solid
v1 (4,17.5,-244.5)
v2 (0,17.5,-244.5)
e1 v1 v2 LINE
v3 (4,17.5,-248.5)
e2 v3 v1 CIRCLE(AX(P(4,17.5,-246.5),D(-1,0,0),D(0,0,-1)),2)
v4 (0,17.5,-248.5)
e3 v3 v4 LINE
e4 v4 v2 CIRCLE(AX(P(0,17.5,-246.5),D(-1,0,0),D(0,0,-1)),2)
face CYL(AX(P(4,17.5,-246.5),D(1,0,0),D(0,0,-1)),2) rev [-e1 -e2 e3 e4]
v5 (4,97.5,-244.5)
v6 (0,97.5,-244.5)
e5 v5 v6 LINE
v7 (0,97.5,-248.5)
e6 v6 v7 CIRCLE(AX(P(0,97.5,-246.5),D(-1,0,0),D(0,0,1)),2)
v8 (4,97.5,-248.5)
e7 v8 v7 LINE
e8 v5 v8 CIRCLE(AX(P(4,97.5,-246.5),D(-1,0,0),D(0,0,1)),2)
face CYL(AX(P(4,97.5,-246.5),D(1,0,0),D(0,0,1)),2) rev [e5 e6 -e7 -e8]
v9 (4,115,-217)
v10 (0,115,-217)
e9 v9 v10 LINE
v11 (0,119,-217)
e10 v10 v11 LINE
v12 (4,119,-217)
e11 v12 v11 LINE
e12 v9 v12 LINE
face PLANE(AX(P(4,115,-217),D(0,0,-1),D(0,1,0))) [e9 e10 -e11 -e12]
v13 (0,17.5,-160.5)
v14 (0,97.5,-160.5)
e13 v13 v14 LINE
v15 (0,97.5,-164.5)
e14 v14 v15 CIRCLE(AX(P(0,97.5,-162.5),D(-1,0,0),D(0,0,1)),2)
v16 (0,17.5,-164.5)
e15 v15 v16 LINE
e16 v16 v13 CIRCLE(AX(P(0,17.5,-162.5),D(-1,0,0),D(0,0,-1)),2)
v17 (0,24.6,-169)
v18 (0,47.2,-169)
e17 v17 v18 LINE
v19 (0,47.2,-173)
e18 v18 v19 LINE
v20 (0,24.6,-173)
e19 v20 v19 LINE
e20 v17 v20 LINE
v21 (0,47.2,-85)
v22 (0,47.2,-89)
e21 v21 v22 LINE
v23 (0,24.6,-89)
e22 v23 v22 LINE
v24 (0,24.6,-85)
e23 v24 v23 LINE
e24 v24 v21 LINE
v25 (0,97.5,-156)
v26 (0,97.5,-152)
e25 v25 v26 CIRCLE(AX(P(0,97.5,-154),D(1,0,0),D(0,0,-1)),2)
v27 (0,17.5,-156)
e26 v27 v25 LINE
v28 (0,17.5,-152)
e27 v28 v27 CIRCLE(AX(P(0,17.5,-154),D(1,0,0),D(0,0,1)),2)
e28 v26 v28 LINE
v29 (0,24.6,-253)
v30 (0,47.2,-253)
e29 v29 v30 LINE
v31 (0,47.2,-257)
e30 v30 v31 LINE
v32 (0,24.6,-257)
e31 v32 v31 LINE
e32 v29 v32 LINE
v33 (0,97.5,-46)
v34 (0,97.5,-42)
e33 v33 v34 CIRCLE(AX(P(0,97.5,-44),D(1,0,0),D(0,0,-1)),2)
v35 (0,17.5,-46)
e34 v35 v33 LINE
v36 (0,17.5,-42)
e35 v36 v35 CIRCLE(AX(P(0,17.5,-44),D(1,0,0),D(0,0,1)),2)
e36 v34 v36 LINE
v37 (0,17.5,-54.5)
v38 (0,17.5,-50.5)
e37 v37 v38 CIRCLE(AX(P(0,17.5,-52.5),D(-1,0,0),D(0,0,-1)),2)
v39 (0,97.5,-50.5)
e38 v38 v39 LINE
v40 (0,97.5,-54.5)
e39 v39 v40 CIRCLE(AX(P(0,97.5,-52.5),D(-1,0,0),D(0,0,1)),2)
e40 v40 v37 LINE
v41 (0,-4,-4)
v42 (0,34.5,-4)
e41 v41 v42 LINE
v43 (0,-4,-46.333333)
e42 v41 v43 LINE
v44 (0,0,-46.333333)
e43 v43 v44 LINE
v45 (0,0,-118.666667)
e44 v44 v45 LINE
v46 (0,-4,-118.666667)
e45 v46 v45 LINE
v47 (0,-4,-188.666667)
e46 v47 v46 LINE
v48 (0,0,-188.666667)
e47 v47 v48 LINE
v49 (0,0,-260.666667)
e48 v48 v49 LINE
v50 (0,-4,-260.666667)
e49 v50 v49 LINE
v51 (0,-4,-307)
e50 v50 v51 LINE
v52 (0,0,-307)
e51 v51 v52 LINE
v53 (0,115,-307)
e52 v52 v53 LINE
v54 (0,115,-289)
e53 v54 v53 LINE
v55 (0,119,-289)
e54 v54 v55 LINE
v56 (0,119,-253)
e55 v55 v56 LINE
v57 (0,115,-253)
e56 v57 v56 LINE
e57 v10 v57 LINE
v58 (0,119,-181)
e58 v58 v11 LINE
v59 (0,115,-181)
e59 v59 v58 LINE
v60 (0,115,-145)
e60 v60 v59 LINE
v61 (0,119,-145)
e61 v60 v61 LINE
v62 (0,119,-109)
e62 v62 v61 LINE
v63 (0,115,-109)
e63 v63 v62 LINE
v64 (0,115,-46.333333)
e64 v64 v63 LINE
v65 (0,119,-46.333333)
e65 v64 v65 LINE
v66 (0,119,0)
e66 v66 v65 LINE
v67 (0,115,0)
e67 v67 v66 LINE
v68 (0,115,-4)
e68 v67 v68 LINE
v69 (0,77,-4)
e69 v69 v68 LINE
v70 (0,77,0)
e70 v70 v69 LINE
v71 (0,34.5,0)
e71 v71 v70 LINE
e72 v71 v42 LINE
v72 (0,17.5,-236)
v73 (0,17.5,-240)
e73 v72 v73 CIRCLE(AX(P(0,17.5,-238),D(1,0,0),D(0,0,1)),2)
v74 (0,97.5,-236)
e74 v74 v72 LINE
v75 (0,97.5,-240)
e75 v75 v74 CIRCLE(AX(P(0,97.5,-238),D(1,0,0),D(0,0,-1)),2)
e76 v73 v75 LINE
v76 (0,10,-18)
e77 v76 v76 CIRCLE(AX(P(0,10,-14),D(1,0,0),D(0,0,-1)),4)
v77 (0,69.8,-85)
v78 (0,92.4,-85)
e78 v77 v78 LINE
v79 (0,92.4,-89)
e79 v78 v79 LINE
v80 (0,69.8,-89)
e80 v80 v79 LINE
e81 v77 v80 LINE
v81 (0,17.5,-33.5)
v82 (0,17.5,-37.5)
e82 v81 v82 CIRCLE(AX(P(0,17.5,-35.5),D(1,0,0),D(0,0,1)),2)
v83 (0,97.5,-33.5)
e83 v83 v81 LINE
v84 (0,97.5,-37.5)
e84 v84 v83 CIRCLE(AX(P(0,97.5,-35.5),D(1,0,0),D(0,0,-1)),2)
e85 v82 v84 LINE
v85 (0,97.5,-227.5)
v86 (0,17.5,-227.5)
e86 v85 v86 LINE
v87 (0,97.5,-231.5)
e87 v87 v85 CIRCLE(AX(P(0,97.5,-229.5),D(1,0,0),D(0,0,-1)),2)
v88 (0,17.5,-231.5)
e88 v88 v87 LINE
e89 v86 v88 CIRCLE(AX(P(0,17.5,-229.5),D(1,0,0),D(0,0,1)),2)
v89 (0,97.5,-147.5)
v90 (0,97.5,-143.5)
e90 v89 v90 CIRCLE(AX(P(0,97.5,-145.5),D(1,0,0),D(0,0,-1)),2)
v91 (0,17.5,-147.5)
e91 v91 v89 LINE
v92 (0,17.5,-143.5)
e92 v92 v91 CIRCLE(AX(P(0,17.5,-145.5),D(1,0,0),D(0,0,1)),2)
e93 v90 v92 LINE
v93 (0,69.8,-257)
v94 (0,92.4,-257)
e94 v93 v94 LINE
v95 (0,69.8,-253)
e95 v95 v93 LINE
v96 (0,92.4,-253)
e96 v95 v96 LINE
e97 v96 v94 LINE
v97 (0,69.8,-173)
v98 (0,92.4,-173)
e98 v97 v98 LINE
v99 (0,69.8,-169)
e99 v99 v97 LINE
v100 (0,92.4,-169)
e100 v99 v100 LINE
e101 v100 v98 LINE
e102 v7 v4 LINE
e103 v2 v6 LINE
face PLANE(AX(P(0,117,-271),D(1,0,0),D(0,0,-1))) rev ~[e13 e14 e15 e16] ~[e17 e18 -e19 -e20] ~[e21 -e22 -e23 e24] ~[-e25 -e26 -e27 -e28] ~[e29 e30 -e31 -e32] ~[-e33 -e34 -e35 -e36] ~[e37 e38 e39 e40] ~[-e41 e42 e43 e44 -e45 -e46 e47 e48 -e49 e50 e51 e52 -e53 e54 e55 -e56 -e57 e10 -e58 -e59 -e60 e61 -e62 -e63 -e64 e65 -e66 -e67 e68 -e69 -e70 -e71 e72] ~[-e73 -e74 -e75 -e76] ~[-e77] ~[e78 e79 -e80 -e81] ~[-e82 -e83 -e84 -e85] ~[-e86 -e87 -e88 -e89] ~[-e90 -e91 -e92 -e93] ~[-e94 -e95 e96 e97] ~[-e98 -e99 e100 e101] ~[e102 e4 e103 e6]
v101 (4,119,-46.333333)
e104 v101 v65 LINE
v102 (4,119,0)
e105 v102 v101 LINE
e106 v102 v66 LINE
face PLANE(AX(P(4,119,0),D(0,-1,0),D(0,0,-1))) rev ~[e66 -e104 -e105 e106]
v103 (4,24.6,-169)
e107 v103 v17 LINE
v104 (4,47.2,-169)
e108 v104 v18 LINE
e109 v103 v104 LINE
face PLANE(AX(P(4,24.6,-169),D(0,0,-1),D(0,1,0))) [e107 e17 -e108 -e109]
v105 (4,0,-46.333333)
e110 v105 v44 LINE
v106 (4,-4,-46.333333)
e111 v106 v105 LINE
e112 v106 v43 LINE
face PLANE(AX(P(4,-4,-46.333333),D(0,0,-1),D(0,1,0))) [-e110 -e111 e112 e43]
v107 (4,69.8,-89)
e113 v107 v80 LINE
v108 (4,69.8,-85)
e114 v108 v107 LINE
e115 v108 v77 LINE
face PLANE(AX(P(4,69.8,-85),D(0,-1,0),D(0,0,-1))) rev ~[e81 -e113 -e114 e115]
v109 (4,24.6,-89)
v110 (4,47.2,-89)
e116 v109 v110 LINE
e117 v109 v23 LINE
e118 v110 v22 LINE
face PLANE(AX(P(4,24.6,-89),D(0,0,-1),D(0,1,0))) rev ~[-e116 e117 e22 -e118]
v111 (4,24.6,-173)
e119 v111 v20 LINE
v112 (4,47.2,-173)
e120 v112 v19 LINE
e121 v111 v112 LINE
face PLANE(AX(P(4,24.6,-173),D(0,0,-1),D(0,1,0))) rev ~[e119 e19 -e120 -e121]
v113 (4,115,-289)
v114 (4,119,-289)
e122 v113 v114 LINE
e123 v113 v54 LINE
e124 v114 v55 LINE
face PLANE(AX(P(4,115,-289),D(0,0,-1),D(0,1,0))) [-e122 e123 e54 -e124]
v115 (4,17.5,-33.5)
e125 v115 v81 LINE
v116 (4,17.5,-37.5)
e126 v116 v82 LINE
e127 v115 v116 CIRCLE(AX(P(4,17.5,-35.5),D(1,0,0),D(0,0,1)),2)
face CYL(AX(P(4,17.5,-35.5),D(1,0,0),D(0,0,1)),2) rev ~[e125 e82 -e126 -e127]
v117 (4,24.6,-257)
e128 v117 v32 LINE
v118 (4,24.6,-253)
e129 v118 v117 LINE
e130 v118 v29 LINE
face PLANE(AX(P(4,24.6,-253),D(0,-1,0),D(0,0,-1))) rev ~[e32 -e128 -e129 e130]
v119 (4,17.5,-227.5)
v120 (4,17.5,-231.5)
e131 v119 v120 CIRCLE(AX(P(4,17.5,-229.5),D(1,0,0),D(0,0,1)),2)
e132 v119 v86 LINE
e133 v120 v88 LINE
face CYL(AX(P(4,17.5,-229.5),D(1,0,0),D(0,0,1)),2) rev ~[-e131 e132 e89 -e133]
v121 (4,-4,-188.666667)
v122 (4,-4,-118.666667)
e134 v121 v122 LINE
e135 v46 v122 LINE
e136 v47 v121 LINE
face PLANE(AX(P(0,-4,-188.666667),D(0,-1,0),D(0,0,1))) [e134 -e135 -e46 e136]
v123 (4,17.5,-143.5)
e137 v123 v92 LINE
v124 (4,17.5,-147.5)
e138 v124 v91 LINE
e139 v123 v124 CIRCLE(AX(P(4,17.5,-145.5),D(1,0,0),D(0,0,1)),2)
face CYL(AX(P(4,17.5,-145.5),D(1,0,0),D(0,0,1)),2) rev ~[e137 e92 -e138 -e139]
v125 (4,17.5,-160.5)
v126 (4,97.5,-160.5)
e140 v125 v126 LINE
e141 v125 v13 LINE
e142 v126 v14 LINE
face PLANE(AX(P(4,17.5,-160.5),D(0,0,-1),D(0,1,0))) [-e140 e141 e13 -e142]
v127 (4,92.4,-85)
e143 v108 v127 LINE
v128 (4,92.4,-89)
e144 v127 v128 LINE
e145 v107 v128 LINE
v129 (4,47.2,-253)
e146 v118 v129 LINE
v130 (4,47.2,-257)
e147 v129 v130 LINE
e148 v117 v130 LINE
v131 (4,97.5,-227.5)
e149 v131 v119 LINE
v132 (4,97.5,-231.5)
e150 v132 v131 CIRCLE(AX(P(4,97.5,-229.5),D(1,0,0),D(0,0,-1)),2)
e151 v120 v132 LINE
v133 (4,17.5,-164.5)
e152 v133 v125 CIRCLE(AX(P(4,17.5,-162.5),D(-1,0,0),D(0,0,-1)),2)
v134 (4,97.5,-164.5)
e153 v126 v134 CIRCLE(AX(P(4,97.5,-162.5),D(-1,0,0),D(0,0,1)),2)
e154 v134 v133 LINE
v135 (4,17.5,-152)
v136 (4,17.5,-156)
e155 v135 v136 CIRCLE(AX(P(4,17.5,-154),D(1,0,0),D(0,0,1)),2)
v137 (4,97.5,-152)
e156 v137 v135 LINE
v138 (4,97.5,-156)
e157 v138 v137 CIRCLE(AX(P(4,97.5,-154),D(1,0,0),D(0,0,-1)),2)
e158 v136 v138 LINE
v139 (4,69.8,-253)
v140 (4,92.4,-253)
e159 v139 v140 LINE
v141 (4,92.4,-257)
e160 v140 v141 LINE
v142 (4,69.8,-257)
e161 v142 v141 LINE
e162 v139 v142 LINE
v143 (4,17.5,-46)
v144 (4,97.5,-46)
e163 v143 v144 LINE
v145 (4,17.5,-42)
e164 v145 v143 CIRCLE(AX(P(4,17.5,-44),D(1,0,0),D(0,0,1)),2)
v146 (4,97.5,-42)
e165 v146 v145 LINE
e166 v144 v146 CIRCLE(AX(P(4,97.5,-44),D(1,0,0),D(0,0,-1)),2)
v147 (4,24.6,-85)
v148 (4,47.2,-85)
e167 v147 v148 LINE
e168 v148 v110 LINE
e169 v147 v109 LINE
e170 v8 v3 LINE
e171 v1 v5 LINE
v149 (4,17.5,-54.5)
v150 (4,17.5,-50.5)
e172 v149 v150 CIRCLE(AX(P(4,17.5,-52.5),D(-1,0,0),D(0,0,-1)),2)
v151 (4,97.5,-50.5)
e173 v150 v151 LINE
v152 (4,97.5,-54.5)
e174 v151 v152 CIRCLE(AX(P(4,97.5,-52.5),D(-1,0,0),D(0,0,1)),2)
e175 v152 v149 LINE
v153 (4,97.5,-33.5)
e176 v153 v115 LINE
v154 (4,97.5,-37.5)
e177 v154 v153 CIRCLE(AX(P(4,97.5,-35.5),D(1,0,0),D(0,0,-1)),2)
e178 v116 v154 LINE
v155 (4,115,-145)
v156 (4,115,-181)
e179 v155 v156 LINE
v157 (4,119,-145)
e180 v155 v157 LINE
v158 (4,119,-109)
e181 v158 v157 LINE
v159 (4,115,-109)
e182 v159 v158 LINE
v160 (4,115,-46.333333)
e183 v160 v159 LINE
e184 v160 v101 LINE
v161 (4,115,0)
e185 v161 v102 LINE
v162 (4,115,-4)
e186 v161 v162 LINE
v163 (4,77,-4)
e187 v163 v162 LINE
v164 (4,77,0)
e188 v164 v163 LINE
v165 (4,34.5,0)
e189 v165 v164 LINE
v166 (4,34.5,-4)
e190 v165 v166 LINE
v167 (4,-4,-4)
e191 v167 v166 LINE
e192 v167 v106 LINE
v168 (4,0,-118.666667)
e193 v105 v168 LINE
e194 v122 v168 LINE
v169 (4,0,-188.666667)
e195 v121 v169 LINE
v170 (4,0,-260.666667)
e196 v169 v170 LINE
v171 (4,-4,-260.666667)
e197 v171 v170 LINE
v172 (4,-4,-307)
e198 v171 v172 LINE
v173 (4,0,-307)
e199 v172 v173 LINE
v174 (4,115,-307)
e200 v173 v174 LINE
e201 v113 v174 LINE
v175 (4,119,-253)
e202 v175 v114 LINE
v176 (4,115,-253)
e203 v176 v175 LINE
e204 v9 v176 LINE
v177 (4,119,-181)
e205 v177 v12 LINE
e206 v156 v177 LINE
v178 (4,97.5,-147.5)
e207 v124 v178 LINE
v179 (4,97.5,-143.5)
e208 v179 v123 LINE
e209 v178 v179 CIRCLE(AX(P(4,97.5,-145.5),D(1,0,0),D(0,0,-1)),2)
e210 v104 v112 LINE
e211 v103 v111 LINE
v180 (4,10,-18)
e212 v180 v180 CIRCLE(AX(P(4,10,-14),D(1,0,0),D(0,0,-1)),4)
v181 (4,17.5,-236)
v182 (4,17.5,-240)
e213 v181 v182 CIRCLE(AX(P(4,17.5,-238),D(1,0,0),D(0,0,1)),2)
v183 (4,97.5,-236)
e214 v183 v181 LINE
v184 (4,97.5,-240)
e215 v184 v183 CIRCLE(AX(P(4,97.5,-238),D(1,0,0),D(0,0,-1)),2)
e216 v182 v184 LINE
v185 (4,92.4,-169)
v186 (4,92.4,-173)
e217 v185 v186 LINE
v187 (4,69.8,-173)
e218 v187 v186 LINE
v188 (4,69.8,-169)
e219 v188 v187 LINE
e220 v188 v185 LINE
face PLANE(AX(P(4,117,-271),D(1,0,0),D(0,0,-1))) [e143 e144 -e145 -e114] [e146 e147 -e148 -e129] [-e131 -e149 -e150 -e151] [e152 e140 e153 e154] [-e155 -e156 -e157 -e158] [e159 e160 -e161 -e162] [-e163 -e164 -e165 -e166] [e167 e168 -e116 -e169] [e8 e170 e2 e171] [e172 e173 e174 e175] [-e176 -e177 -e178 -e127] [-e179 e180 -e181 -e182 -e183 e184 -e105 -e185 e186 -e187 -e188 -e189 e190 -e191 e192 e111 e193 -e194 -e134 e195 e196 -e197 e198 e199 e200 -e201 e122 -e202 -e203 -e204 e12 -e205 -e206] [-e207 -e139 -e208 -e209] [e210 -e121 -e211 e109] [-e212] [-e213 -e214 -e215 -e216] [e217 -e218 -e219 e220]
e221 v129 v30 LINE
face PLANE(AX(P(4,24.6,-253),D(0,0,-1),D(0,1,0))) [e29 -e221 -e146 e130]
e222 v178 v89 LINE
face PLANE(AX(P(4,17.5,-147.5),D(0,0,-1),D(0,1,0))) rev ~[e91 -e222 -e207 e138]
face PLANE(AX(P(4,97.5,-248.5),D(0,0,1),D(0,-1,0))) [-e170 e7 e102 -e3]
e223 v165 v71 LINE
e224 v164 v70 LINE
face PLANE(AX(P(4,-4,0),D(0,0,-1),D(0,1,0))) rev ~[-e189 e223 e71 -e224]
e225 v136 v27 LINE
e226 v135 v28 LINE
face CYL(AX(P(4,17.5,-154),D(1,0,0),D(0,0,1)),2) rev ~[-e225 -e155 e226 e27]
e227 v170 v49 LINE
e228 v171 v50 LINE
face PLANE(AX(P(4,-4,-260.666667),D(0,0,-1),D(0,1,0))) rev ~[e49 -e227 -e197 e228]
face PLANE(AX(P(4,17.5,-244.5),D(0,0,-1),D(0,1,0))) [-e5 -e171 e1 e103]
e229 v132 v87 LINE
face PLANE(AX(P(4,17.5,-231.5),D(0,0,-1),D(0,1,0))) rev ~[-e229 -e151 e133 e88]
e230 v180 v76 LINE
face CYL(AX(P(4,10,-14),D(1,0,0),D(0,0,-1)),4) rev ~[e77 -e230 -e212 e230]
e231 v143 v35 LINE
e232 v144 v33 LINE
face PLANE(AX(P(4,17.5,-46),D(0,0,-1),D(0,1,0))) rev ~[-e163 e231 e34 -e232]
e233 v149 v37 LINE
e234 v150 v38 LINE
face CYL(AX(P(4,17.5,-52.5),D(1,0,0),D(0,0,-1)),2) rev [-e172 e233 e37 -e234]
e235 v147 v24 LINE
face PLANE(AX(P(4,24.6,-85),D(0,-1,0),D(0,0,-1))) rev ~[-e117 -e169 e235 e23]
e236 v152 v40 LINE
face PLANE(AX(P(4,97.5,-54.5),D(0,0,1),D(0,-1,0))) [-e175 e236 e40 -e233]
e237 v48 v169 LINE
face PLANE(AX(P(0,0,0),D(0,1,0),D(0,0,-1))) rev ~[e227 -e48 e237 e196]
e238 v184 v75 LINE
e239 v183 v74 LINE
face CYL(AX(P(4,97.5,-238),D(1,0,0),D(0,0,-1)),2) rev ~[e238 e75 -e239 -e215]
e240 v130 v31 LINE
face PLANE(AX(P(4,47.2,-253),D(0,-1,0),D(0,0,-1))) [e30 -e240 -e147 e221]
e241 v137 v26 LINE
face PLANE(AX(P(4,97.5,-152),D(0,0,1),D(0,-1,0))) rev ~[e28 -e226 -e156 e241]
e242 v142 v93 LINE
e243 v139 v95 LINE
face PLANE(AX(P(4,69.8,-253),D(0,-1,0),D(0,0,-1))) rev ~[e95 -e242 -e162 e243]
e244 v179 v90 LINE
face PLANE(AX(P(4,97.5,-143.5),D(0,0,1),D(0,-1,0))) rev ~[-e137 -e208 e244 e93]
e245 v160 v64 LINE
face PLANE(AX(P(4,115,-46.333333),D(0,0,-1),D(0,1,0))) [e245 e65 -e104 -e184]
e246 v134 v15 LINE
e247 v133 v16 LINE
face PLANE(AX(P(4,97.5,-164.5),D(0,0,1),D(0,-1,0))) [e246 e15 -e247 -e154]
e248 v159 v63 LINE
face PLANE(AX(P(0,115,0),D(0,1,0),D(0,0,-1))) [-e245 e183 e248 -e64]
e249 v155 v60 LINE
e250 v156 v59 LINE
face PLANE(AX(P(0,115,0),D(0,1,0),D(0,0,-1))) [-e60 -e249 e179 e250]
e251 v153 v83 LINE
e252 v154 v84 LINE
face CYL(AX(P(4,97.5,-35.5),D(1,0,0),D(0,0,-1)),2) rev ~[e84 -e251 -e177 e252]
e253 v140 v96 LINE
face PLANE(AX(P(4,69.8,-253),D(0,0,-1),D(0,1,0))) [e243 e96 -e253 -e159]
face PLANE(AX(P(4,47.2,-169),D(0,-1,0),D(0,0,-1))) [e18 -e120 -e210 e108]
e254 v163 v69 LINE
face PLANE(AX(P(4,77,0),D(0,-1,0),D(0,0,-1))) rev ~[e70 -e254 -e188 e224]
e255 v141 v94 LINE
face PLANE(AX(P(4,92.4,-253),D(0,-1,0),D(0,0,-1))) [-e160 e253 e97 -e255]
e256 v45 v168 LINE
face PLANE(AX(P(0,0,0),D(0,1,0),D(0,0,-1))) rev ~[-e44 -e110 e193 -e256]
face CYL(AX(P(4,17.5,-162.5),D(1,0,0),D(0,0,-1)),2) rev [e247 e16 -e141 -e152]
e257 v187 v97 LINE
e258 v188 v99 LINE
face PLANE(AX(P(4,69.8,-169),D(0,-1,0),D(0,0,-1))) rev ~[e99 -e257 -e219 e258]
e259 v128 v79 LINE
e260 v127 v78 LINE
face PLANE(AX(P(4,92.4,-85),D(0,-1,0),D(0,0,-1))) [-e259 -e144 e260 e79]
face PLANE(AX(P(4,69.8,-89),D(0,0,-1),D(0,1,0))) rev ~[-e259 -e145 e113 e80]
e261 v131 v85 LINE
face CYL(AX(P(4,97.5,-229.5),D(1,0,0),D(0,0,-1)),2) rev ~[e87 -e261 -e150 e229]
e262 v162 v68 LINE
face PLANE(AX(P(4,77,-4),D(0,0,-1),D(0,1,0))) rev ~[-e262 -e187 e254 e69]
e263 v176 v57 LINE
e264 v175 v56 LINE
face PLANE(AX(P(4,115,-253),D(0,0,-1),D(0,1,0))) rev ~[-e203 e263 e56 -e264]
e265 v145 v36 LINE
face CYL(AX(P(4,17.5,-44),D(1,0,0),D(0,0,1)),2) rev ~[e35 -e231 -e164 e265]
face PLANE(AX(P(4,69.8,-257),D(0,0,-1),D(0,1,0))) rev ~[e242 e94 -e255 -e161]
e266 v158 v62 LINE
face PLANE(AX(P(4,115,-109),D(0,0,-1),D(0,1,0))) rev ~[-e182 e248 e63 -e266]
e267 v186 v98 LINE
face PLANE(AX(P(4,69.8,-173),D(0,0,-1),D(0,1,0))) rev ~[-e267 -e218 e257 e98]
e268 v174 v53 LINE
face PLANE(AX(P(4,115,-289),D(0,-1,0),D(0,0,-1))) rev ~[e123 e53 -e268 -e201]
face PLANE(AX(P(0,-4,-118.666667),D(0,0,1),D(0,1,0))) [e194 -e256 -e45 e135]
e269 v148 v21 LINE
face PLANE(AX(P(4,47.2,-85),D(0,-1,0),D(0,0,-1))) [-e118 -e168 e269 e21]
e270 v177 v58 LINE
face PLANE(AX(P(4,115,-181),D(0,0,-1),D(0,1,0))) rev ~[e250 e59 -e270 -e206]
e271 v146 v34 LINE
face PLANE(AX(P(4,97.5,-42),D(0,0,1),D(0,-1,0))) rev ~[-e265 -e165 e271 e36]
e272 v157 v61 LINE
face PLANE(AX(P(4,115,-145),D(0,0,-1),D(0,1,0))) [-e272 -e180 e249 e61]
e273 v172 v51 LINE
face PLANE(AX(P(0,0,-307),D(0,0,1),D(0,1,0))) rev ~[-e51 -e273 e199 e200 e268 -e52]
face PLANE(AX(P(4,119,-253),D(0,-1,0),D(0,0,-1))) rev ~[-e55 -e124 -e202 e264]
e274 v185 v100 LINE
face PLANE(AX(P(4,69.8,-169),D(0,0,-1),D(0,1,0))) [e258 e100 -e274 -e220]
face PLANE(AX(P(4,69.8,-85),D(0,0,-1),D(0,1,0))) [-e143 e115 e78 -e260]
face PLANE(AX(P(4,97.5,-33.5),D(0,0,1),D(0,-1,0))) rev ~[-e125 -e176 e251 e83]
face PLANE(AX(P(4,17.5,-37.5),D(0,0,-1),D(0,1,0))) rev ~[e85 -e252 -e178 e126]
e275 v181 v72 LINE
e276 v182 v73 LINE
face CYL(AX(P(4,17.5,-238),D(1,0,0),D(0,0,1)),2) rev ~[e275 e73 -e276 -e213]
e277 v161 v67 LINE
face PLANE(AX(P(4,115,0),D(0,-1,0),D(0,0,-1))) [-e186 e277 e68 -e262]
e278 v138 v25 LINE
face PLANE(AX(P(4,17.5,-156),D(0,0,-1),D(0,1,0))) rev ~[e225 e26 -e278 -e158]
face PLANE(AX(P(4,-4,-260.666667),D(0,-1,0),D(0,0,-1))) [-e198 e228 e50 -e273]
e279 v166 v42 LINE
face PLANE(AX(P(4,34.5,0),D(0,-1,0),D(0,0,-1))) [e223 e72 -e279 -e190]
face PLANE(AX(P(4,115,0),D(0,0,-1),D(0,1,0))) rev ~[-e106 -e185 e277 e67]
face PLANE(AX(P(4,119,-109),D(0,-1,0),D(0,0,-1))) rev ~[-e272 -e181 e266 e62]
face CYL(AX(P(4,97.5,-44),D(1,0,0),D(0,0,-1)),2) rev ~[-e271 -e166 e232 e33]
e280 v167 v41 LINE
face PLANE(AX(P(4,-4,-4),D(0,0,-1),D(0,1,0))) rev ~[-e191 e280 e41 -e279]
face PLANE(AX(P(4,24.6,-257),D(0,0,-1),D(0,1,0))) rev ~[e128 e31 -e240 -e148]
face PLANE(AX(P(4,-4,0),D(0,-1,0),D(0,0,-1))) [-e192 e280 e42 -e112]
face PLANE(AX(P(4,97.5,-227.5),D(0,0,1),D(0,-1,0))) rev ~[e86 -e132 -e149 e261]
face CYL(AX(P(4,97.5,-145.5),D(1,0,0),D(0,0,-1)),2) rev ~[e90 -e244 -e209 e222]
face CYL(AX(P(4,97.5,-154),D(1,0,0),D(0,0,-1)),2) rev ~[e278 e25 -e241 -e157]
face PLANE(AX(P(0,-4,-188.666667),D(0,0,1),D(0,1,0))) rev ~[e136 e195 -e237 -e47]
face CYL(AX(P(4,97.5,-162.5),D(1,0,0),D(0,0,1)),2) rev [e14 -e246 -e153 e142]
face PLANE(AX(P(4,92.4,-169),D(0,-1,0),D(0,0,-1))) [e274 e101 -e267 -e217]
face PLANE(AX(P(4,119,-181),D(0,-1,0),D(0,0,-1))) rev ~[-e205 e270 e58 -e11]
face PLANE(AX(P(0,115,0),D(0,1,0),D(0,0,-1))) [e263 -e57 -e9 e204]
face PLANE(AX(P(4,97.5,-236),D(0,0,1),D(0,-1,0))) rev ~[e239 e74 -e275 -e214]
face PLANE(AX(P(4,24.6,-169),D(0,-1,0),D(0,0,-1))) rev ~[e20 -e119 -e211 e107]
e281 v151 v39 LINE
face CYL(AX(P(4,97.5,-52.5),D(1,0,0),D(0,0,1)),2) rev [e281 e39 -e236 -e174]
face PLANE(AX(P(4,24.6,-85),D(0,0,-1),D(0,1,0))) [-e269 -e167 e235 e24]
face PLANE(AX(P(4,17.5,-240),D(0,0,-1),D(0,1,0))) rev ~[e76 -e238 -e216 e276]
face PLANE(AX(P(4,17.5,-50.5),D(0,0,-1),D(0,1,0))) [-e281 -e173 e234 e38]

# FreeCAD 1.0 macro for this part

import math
import FreeCAD as App
import Part
import Sketcher
from FreeCAD import Vector
Q = App.Units.Quantity

doc = App.newDocument("Part")
body = doc.addObject("PartDesign::Body", "Body")

# Sketch on YZ plane
sketch1 = body.newObject("Sketcher::SketchObject", "Sketch")
sketch1.AttachmentSupport = (doc.getObject("YZ_Plane"), [""])
sketch1.MapMode = "FlatFace"
sketch1.addGeometry(Part.LineSegment(Vector(115, 0, 0), Vector(0, 0, 0)), False)
sketch1.addGeometry(Part.LineSegment(Vector(0, 0, 0), Vector(0, -307, 0)), False)
sketch1.addGeometry(Part.LineSegment(Vector(0, -307, 0), Vector(115, -307, 0)), False)
sketch1.addGeometry(Part.LineSegment(Vector(115, -307, 0), Vector(115, 0, 0)), False)
sketch1.addConstraint(Sketcher.Constraint("Coincident", 0, 2, 1, 1))
sketch1.addConstraint(Sketcher.Constraint("Coincident", 1, 2, 2, 1))
sketch1.addConstraint(Sketcher.Constraint("Coincident", 2, 2, 3, 1))
sketch1.addConstraint(Sketcher.Constraint("Coincident", 3, 2, 0, 1))
sketch1.addConstraint(Sketcher.Constraint("Horizontal", 0))
sketch1.addConstraint(Sketcher.Constraint("Vertical", 1))
sketch1.addConstraint(Sketcher.Constraint("Horizontal", 2))
sketch1.addConstraint(Sketcher.Constraint("Vertical", 3))
sketch1.addConstraint(Sketcher.Constraint("Coincident", 0, 2, -1, 1))
sketch1.addConstraint(Sketcher.Constraint("DistanceX", 0, 2, 0, 1, Q("115 mm")))
sketch1.addConstraint(Sketcher.Constraint("DistanceY", 1, 2, 1, 1, Q("307 mm")))
pad1 = body.newObject("PartDesign::Pad", "Pad")
pad1.Profile = sketch1
pad1.Length = 4

# Sketch on YZ plane
sketch2 = body.newObject("Sketcher::SketchObject", "Sketch001")
sketch2.AttachmentSupport = (doc.getObject("YZ_Plane"), [""])
sketch2.MapMode = "FlatFace"
sketch2.AttachmentOffset = App.Placement(Vector(0, 0, 4), App.Rotation())
sketch2.addGeometry(Part.LineSegment(Vector(0, 0, 0), Vector(-4, 0, 0)), False)
sketch2.addGeometry(Part.LineSegment(Vector(-4, 0, 0), Vector(-4, -46.333333, 0)), False)
sketch2.addGeometry(Part.LineSegment(Vector(-4, -46.333333, 0), Vector(0, -46.333333, 0)), False)
sketch2.addGeometry(Part.LineSegment(Vector(0, -46.333333, 0), Vector(0, 0, 0)), False)
sketch2.addGeometry(Part.LineSegment(Vector(0, -260.666667, 0), Vector(-4, -260.666667, 0)), False)
sketch2.addGeometry(Part.LineSegment(Vector(-4, -260.666667, 0), Vector(-4, -307, 0)), False)
sketch2.addGeometry(Part.LineSegment(Vector(-4, -307, 0), Vector(0, -307, 0)), False)
sketch2.addGeometry(Part.LineSegment(Vector(0, -307, 0), Vector(0, -260.666667, 0)), False)
sketch2.addConstraint(Sketcher.Constraint("Coincident", 0, 2, 1, 1))
sketch2.addConstraint(Sketcher.Constraint("Coincident", 1, 2, 2, 1))
sketch2.addConstraint(Sketcher.Constraint("Coincident", 2, 2, 3, 1))
sketch2.addConstraint(Sketcher.Constraint("Coincident", 3, 2, 0, 1))
sketch2.addConstraint(Sketcher.Constraint("Coincident", 4, 2, 5, 1))
sketch2.addConstraint(Sketcher.Constraint("Coincident", 5, 2, 6, 1))
sketch2.addConstraint(Sketcher.Constraint("Coincident", 6, 2, 7, 1))
sketch2.addConstraint(Sketcher.Constraint("Coincident", 7, 2, 4, 1))
sketch2.addConstraint(Sketcher.Constraint("Horizontal", 0))
sketch2.addConstraint(Sketcher.Constraint("Vertical", 1))
sketch2.addConstraint(Sketcher.Constraint("Horizontal", 2))
sketch2.addConstraint(Sketcher.Constraint("Vertical", 3))
sketch2.addConstraint(Sketcher.Constraint("Horizontal", 4))
sketch2.addConstraint(Sketcher.Constraint("Vertical", 5))
sketch2.addConstraint(Sketcher.Constraint("Horizontal", 6))
sketch2.addConstraint(Sketcher.Constraint("Vertical", 7))
sketch2.addConstraint(Sketcher.Constraint("Coincident", 3, 2, -1, 1))
sketch2.addConstraint(Sketcher.Constraint("PointOnObject", 6, 2, -2))
sketch2.addConstraint(Sketcher.Constraint("Vertical", 1, 2, 4, 2))
sketch2.addConstraint(Sketcher.Constraint("Equal", 3, 5))
sketch2.addConstraint(Sketcher.Constraint("DistanceX", 0, 2, 0, 1, Q("4 mm")))
sketch2.addConstraint(Sketcher.Constraint("DistanceY", 5, 2, -1, 1, Q("307 mm")))
sketch2.addConstraint(Sketcher.Constraint("DistanceY", 1, 2, 1, 1, Q("46.333333 mm")))
pad2 = body.newObject("PartDesign::Pad", "Pad001")
pad2.Profile = sketch2
pad2.Length = 4
pad2.Reversed = True

# Sketch on YZ plane
sketch3 = body.newObject("Sketcher::SketchObject", "Sketch002")
sketch3.AttachmentSupport = (doc.getObject("YZ_Plane"), [""])
sketch3.MapMode = "FlatFace"
sketch3.AttachmentOffset = App.Placement(Vector(0, 0, 4), App.Rotation())
sketch3.addGeometry(Part.LineSegment(Vector(115, 0, 0), Vector(77, 0, 0)), False)
sketch3.addGeometry(Part.LineSegment(Vector(77, 0, 0), Vector(77, -4, 0)), False)
sketch3.addGeometry(Part.LineSegment(Vector(77, -4, 0), Vector(115, -4, 0)), False)
sketch3.addGeometry(Part.LineSegment(Vector(115, -4, 0), Vector(115, 0, 0)), False)
sketch3.addGeometry(Part.LineSegment(Vector(34.5, 0, 0), Vector(-4, 0, 0)), False)
sketch3.addGeometry(Part.LineSegment(Vector(-4, 0, 0), Vector(-4, -4, 0)), False)
sketch3.addGeometry(Part.LineSegment(Vector(-4, -4, 0), Vector(34.5, -4, 0)), False)
sketch3.addGeometry(Part.LineSegment(Vector(34.5, -4, 0), Vector(34.5, 0, 0)), False)
sketch3.addConstraint(Sketcher.Constraint("Coincident", 0, 2, 1, 1))
sketch3.addConstraint(Sketcher.Constraint("Coincident", 1, 2, 2, 1))
sketch3.addConstraint(Sketcher.Constraint("Coincident", 2, 2, 3, 1))
sketch3.addConstraint(Sketcher.Constraint("Coincident", 3, 2, 0, 1))
sketch3.addConstraint(Sketcher.Constraint("Coincident", 4, 2, 5, 1))
sketch3.addConstraint(Sketcher.Constraint("Coincident", 5, 2, 6, 1))
sketch3.addConstraint(Sketcher.Constraint("Coincident", 6, 2, 7, 1))
sketch3.addConstraint(Sketcher.Constraint("Coincident", 7, 2, 4, 1))
sketch3.addConstraint(Sketcher.Constraint("Horizontal", 0))
sketch3.addConstraint(Sketcher.Constraint("Vertical", 1))
sketch3.addConstraint(Sketcher.Constraint("Horizontal", 2))
sketch3.addConstraint(Sketcher.Constraint("Vertical", 3))
sketch3.addConstraint(Sketcher.Constraint("Horizontal", 4))
sketch3.addConstraint(Sketcher.Constraint("Vertical", 5))
sketch3.addConstraint(Sketcher.Constraint("Horizontal", 6))
sketch3.addConstraint(Sketcher.Constraint("Vertical", 7))
sketch3.addConstraint(Sketcher.Constraint("PointOnObject", 0, 2, -1))
sketch3.addConstraint(Sketcher.Constraint("PointOnObject", 4, 2, -1))
sketch3.addConstraint(Sketcher.Constraint("Horizontal", 2, 2, 5, 2))
sketch3.addConstraint(Sketcher.Constraint("DistanceX", 0, 2, 0, 1, Q("38 mm")))
sketch3.addConstraint(Sketcher.Constraint("DistanceY", 1, 2, 1, 1, Q("4 mm")))
sketch3.addConstraint(Sketcher.Constraint("DistanceX", 4, 2, 4, 1, Q("38.5 mm")))
sketch3.addConstraint(Sketcher.Constraint("DistanceX", -1, 1, 0, 2, Q("77 mm")))
sketch3.addConstraint(Sketcher.Constraint("DistanceX", 4, 2, -1, 1, Q("4 mm")))
pocket1 = body.newObject("PartDesign::Pocket", "Pocket")
pocket1.Profile = sketch3
pocket1.Length = 4

# Sketch on YZ plane
sketch4 = body.newObject("Sketcher::SketchObject", "Sketch003")
sketch4.AttachmentSupport = (doc.getObject("YZ_Plane"), [""])
sketch4.MapMode = "FlatFace"
sketch4.AttachmentOffset = App.Placement(Vector(0, 0, 4), App.Rotation())
sketch4.addGeometry(Part.LineSegment(Vector(92.4, -253, 0), Vector(69.8, -253, 0)), False)
sketch4.addGeometry(Part.LineSegment(Vector(69.8, -253, 0), Vector(69.8, -257, 0)), False)
sketch4.addGeometry(Part.LineSegment(Vector(69.8, -257, 0), Vector(92.4, -257, 0)), False)
sketch4.addGeometry(Part.LineSegment(Vector(92.4, -257, 0), Vector(92.4, -253, 0)), False)
sketch4.addGeometry(Part.LineSegment(Vector(47.2, -253, 0), Vector(24.6, -253, 0)), False)
sketch4.addGeometry(Part.LineSegment(Vector(24.6, -253, 0), Vector(24.6, -257, 0)), False)
sketch4.addGeometry(Part.LineSegment(Vector(24.6, -257, 0), Vector(47.2, -257, 0)), False)
sketch4.addGeometry(Part.LineSegment(Vector(47.2, -257, 0), Vector(47.2, -253, 0)), False)
sketch4.addConstraint(Sketcher.Constraint("Coincident", 0, 2, 1, 1))
sketch4.addConstraint(Sketcher.Constraint("Coincident", 1, 2, 2, 1))
sketch4.addConstraint(Sketcher.Constraint("Coincident", 2, 2, 3, 1))
sketch4.addConstraint(Sketcher.Constraint("Coincident", 3, 2, 0, 1))
sketch4.addConstraint(Sketcher.Constraint("Coincident", 4, 2, 5, 1))
sketch4.addConstraint(Sketcher.Constraint("Coincident", 5, 2, 6, 1))
sketch4.addConstraint(Sketcher.Constraint("Coincident", 6, 2, 7, 1))
sketch4.addConstraint(Sketcher.Constraint("Coincident", 7, 2, 4, 1))
sketch4.addConstraint(Sketcher.Constraint("Horizontal", 0))
sketch4.addConstraint(Sketcher.Constraint("Vertical", 1))
sketch4.addConstraint(Sketcher.Constraint("Horizontal", 2))
sketch4.addConstraint(Sketcher.Constraint("Vertical", 3))
sketch4.addConstraint(Sketcher.Constraint("Horizontal", 4))
sketch4.addConstraint(Sketcher.Constraint("Vertical", 5))
sketch4.addConstraint(Sketcher.Constraint("Horizontal", 6))
sketch4.addConstraint(Sketcher.Constraint("Vertical", 7))
sketch4.addConstraint(Sketcher.Constraint("Horizontal", 3, 2, 4, 2))
sketch4.addConstraint(Sketcher.Constraint("Horizontal", 2, 2, 5, 2))
sketch4.addConstraint(Sketcher.Constraint("Equal", 2, 4))
sketch4.addConstraint(Sketcher.Constraint("DistanceY", 1, 2, 1, 1, Q("4 mm")))
sketch4.addConstraint(Sketcher.Constraint("DistanceX", 0, 2, 0, 1, Q("22.6 mm")))
sketch4.addConstraint(Sketcher.Constraint("DistanceY", 0, 2, -1, 1, Q("253 mm")))
sketch4.addConstraint(Sketcher.Constraint("DistanceX", -1, 1, 0, 2, Q("69.8 mm")))
sketch4.addConstraint(Sketcher.Constraint("DistanceX", -1, 1, 4, 2, Q("24.6 mm")))
pocket2 = body.newObject("PartDesign::Pocket", "Pocket001")
pocket2.Profile = sketch4
pocket2.Type = "ThroughAll"

# Sketch on YZ plane
sketch5 = body.newObject("Sketcher::SketchObject", "Sketch004")
sketch5.AttachmentSupport = (doc.getObject("YZ_Plane"), [""])
sketch5.MapMode = "FlatFace"
sketch5.AttachmentOffset = App.Placement(Vector(0, 0, 4), App.Rotation())
sketch5.addGeometry(Part.Circle(Vector(10, -14, 0), Vector(0, 0, 1), 4), False)
sketch5.addConstraint(Sketcher.Constraint("Diameter", 0, Q("8 mm")))
sketch5.addConstraint(Sketcher.Constraint("DistanceX", -1, 1, 0, 3, Q("10 mm")))
sketch5.addConstraint(Sketcher.Constraint("DistanceY", 0, 3, -1, 1, Q("14 mm")))
pocket3 = body.newObject("PartDesign::Pocket", "Pocket002")
pocket3.Profile = sketch5
pocket3.Length = 4
doc.recompute()

linearpattern = body.newObject("PartDesign::LinearPattern", "LinearPattern")
linearpattern.Originals = [pocket2]
linearpattern.Direction = (doc.getObject("Z_Axis"), [""])
linearpattern.Mode = "offset"
linearpattern.Offset = 84
linearpattern.Occurrences = 3
body.Tip = linearpattern

# Sketch on YZ plane
sketch6 = body.newObject("Sketcher::SketchObject", "Sketch005")
sketch6.AttachmentSupport = (doc.getObject("YZ_Plane"), [""])
sketch6.MapMode = "FlatFace"
sketch6.addGeometry(Part.LineSegment(Vector(0, -188.666667, 0), Vector(-4, -188.666667, 0)), False)
sketch6.addGeometry(Part.LineSegment(Vector(-4, -188.666667, 0), Vector(-4, -118.666667, 0)), False)
sketch6.addGeometry(Part.LineSegment(Vector(-4, -118.666667, 0), Vector(0, -118.666667, 0)), False)
sketch6.addGeometry(Part.LineSegment(Vector(0, -118.666667, 0), Vector(0, -188.666667, 0)), False)
sketch6.addConstraint(Sketcher.Constraint("Coincident", 0, 2, 1, 1))
sketch6.addConstraint(Sketcher.Constraint("Coincident", 1, 2, 2, 1))
sketch6.addConstraint(Sketcher.Constraint("Coincident", 2, 2, 3, 1))
sketch6.addConstraint(Sketcher.Constraint("Coincident", 3, 2, 0, 1))
sketch6.addConstraint(Sketcher.Constraint("Horizontal", 0))
sketch6.addConstraint(Sketcher.Constraint("Vertical", 1))
sketch6.addConstraint(Sketcher.Constraint("Horizontal", 2))
sketch6.addConstraint(Sketcher.Constraint("Vertical", 3))
sketch6.addConstraint(Sketcher.Constraint("PointOnObject", 2, 2, -2))
sketch6.addConstraint(Sketcher.Constraint("DistanceX", 0, 2, 0, 1, Q("4 mm")))
sketch6.addConstraint(Sketcher.Constraint("DistanceY", 1, 1, 1, 2, Q("70 mm")))
sketch6.addConstraint(Sketcher.Constraint("DistanceY", 0, 2, -1, 1, Q("188.666667 mm")))
pad3 = body.newObject("PartDesign::Pad", "Pad002")
pad3.Profile = sketch6
pad3.Length = 4
doc.recompute()

linearpattern2 = body.newObject("PartDesign::LinearPattern", "LinearPattern001")
linearpattern2.Originals = [pad2]
linearpattern2.Direction = (doc.getObject("Y_Axis"), [""])
linearpattern2.Mode = "offset"
linearpattern2.Offset = 119
linearpattern2.Occurrences = 2
body.Tip = linearpattern2

# Sketch on YZ plane
sketch7 = body.newObject("Sketcher::SketchObject", "Sketch006")
sketch7.AttachmentSupport = (doc.getObject("YZ_Plane"), [""])
sketch7.MapMode = "FlatFace"
sketch7.AttachmentOffset = App.Placement(Vector(0, 0, 4), App.Rotation())
sketch7.addGeometry(Part.LineSegment(Vector(119, -289, 0), Vector(115, -289, 0)), False)
sketch7.addGeometry(Part.LineSegment(Vector(115, -289, 0), Vector(115, -307, 0)), False)
sketch7.addGeometry(Part.LineSegment(Vector(115, -307, 0), Vector(119, -307, 0)), False)
sketch7.addGeometry(Part.LineSegment(Vector(119, -307, 0), Vector(119, -289, 0)), False)
sketch7.addConstraint(Sketcher.Constraint("Coincident", 0, 2, 1, 1))
sketch7.addConstraint(Sketcher.Constraint("Coincident", 1, 2, 2, 1))
sketch7.addConstraint(Sketcher.Constraint("Coincident", 2, 2, 3, 1))
sketch7.addConstraint(Sketcher.Constraint("Coincident", 3, 2, 0, 1))
sketch7.addConstraint(Sketcher.Constraint("Horizontal", 0))
sketch7.addConstraint(Sketcher.Constraint("Vertical", 1))
sketch7.addConstraint(Sketcher.Constraint("Horizontal", 2))
sketch7.addConstraint(Sketcher.Constraint("Vertical", 3))
sketch7.addConstraint(Sketcher.Constraint("DistanceX", 0, 2, 0, 1, Q("4 mm")))
sketch7.addConstraint(Sketcher.Constraint("DistanceY", 1, 2, 1, 1, Q("18 mm")))
sketch7.addConstraint(Sketcher.Constraint("DistanceX", -1, 1, 0, 2, Q("115 mm")))
sketch7.addConstraint(Sketcher.Constraint("DistanceY", 0, 2, -1, 1, Q("289 mm")))
pocket4 = body.newObject("PartDesign::Pocket", "Pocket003")
pocket4.Profile = sketch7
pocket4.Length = 4

# Sketch on YZ plane
sketch8 = body.newObject("Sketcher::SketchObject", "Sketch007")
sketch8.AttachmentSupport = (doc.getObject("YZ_Plane"), [""])
sketch8.MapMode = "FlatFace"
sketch8.AttachmentOffset = App.Placement(Vector(0, 0, 4), App.Rotation())
sketch8.addGeometry(Part.LineSegment(Vector(119, -253, 0), Vector(115, -253, 0)), False)
sketch8.addGeometry(Part.LineSegment(Vector(115, -253, 0), Vector(115, -289, 0)), False)
sketch8.addGeometry(Part.LineSegment(Vector(115, -289, 0), Vector(119, -289, 0)), False)
sketch8.addGeometry(Part.LineSegment(Vector(119, -289, 0), Vector(119, -253, 0)), False)
sketch8.addGeometry(Part.LineSegment(Vector(119, -181, 0), Vector(115, -181, 0)), False)
sketch8.addGeometry(Part.LineSegment(Vector(115, -181, 0), Vector(115, -217, 0)), False)
sketch8.addGeometry(Part.LineSegment(Vector(115, -217, 0), Vector(119, -217, 0)), False)
sketch8.addGeometry(Part.LineSegment(Vector(119, -217, 0), Vector(119, -181, 0)), False)
sketch8.addGeometry(Part.LineSegment(Vector(119, -109, 0), Vector(115, -109, 0)), False)
sketch8.addGeometry(Part.LineSegment(Vector(115, -109, 0), Vector(115, -145, 0)), False)
sketch8.addGeometry(Part.LineSegment(Vector(115, -145, 0), Vector(119, -145, 0)), False)
sketch8.addGeometry(Part.LineSegment(Vector(119, -145, 0), Vector(119, -109, 0)), False)
sketch8.addConstraint(Sketcher.Constraint("Coincident", 0, 2, 1, 1))
sketch8.addConstraint(Sketcher.Constraint("Coincident", 1, 2, 2, 1))
sketch8.addConstraint(Sketcher.Constraint("Coincident", 2, 2, 3, 1))
sketch8.addConstraint(Sketcher.Constraint("Coincident", 3, 2, 0, 1))
sketch8.addConstraint(Sketcher.Constraint("Coincident", 4, 2, 5, 1))
sketch8.addConstraint(Sketcher.Constraint("Coincident", 5, 2, 6, 1))
sketch8.addConstraint(Sketcher.Constraint("Coincident", 6, 2, 7, 1))
sketch8.addConstraint(Sketcher.Constraint("Coincident", 7, 2, 4, 1))
sketch8.addConstraint(Sketcher.Constraint("Coincident", 8, 2, 9, 1))
sketch8.addConstraint(Sketcher.Constraint("Coincident", 9, 2, 10, 1))
sketch8.addConstraint(Sketcher.Constraint("Coincident", 10, 2, 11, 1))
sketch8.addConstraint(Sketcher.Constraint("Coincident", 11, 2, 8, 1))
sketch8.addConstraint(Sketcher.Constraint("Horizontal", 0))
sketch8.addConstraint(Sketcher.Constraint("Vertical", 1))
sketch8.addConstraint(Sketcher.Constraint("Horizontal", 2))
sketch8.addConstraint(Sketcher.Constraint("Vertical", 3))
sketch8.addConstraint(Sketcher.Constraint("Horizontal", 4))
sketch8.addConstraint(Sketcher.Constraint("Vertical", 5))
sketch8.addConstraint(Sketcher.Constraint("Horizontal", 6))
sketch8.addConstraint(Sketcher.Constraint("Vertical", 7))
sketch8.addConstraint(Sketcher.Constraint("Horizontal", 8))
sketch8.addConstraint(Sketcher.Constraint("Vertical", 9))
sketch8.addConstraint(Sketcher.Constraint("Horizontal", 10))
sketch8.addConstraint(Sketcher.Constraint("Vertical", 11))
sketch8.addConstraint(Sketcher.Constraint("Vertical", 1, 2, 4, 2))
sketch8.addConstraint(Sketcher.Constraint("Vertical", 3, 2, 6, 2))
sketch8.addConstraint(Sketcher.Constraint("Vertical", 5, 2, 8, 2))
sketch8.addConstraint(Sketcher.Constraint("Vertical", 7, 2, 10, 2))
sketch8.addConstraint(Sketcher.Constraint("Equal", 3, 5))
sketch8.addConstraint(Sketcher.Constraint("Equal", 7, 9))
sketch8.addConstraint(Sketcher.Constraint("DistanceX", 0, 2, 0, 1, Q("4 mm")))
sketch8.addConstraint(Sketcher.Constraint("DistanceY", 1, 2, 1, 1, Q("36 mm")))
sketch8.addConstraint(Sketcher.Constraint("DistanceX", -1, 1, 0, 2, Q("115 mm")))
sketch8.addConstraint(Sketcher.Constraint("DistanceY", 0, 2, -1, 1, Q("253 mm")))
sketch8.addConstraint(Sketcher.Constraint("DistanceY", 4, 2, -1, 1, Q("181 mm")))
sketch8.addConstraint(Sketcher.Constraint("DistanceY", 8, 2, -1, 1, Q("109 mm")))
pad4 = body.newObject("PartDesign::Pad", "Pad003")
pad4.Profile = sketch8
pad4.Length = 4
pad4.Reversed = True

# Sketch on YZ plane
sketch9 = body.newObject("Sketcher::SketchObject", "Sketch008")
sketch9.AttachmentSupport = (doc.getObject("YZ_Plane"), [""])
sketch9.MapMode = "FlatFace"
sketch9.AttachmentOffset = App.Placement(Vector(0, 0, 4), App.Rotation())
sketch9.addGeometry(Part.LineSegment(Vector(17.5, -164.5, 0), Vector(97.5, -164.5, 0)), False)
sketch9.addGeometry(Part.ArcOfCircle(Part.Circle(Vector(97.5, -162.5, 0), Vector(0, 0, 1), 2), math.radians(-90), math.radians(90)), False)
sketch9.addGeometry(Part.LineSegment(Vector(97.5, -160.5, 0), Vector(17.5, -160.5, 0)), False)
sketch9.addGeometry(Part.ArcOfCircle(Part.Circle(Vector(17.5, -162.5, 0), Vector(0, 0, 1), 2), math.radians(90), math.radians(270)), False)
sketch9.addGeometry(Part.LineSegment(Vector(97.5, -152, 0), Vector(17.5, -152, 0)), False)
sketch9.addGeometry(Part.ArcOfCircle(Part.Circle(Vector(17.5, -154, 0), Vector(0, 0, 1), 2), math.radians(90), math.radians(270)), False)
sketch9.addGeometry(Part.LineSegment(Vector(17.5, -156, 0), Vector(97.5, -156, 0)), False)
sketch9.addGeometry(Part.ArcOfCircle(Part.Circle(Vector(97.5, -154, 0), Vector(0, 0, 1), 2), math.radians(-90), math.radians(90)), False)
sketch9.addGeometry(Part.LineSegment(Vector(97.5, -143.5, 0), Vector(17.5, -143.5, 0)), False)
sketch9.addGeometry(Part.ArcOfCircle(Part.Circle(Vector(17.5, -145.5, 0), Vector(0, 0, 1), 2), math.radians(90), math.radians(270)), False)
sketch9.addGeometry(Part.LineSegment(Vector(17.5, -147.5, 0), Vector(97.5, -147.5, 0)), False)
sketch9.addGeometry(Part.ArcOfCircle(Part.Circle(Vector(97.5, -145.5, 0), Vector(0, 0, 1), 2), math.radians(-90), math.radians(90)), False)
sketch9.addConstraint(Sketcher.Constraint("Tangent", 0, 2, 1, 1))
sketch9.addConstraint(Sketcher.Constraint("Tangent", 1, 2, 2, 1))
sketch9.addConstraint(Sketcher.Constraint("Tangent", 2, 2, 3, 1))
sketch9.addConstraint(Sketcher.Constraint("Tangent", 3, 2, 0, 1))
sketch9.addConstraint(Sketcher.Constraint("Tangent", 4, 2, 5, 1))
sketch9.addConstraint(Sketcher.Constraint("Tangent", 5, 2, 6, 1))
sketch9.addConstraint(Sketcher.Constraint("Tangent", 6, 2, 7, 1))
sketch9.addConstraint(Sketcher.Constraint("Tangent", 7, 2, 4, 1))
sketch9.addConstraint(Sketcher.Constraint("Tangent", 8, 2, 9, 1))
sketch9.addConstraint(Sketcher.Constraint("Tangent", 9, 2, 10, 1))
sketch9.addConstraint(Sketcher.Constraint("Tangent", 10, 2, 11, 1))
sketch9.addConstraint(Sketcher.Constraint("Tangent", 11, 2, 8, 1))
sketch9.addConstraint(Sketcher.Constraint("Horizontal", 0))
sketch9.addConstraint(Sketcher.Constraint("Horizontal", 2))
sketch9.addConstraint(Sketcher.Constraint("Horizontal", 4))
sketch9.addConstraint(Sketcher.Constraint("Horizontal", 6))
sketch9.addConstraint(Sketcher.Constraint("Horizontal", 8))
sketch9.addConstraint(Sketcher.Constraint("Horizontal", 10))
sketch9.addConstraint(Sketcher.Constraint("Equal", 3, 5))
sketch9.addConstraint(Sketcher.Constraint("Equal", 7, 9))
sketch9.addConstraint(Sketcher.Constraint("Vertical", 3, 3, 5, 3))
sketch9.addConstraint(Sketcher.Constraint("Vertical", 1, 3, 7, 3))
sketch9.addConstraint(Sketcher.Constraint("Vertical", 5, 3, 9, 3))
sketch9.addConstraint(Sketcher.Constraint("Vertical", 7, 3, 11, 3))
sketch9.addConstraint(Sketcher.Constraint("Radius", 1, Q("2 mm")))
sketch9.addConstraint(Sketcher.Constraint("DistanceX", 0, 1, 0, 2, Q("80 mm")))
sketch9.addConstraint(Sketcher.Constraint("DistanceY", 5, 3, -1, 1, Q("154 mm")))
sketch9.addConstraint(Sketcher.Constraint("DistanceY", 3, 3, 9, 3, Q("17 mm")))
sketch9.addConstraint(Sketcher.Constraint("DistanceX", -1, 1, 1, 3, Q("97.5 mm")))
sketch9.addConstraint(Sketcher.Constraint("DistanceY", 1, 3, -1, 1, Q("162.5 mm")))
pocket5 = body.newObject("PartDesign::Pocket", "Pocket004")
pocket5.Profile = sketch9
pocket5.Length = 4
doc.recompute()

linearpattern3 = body.newObject("PartDesign::LinearPattern", "LinearPattern002")
linearpattern3.Originals = [pocket5]
linearpattern3.Direction = (doc.getObject("Z_Axis"), [""])
linearpattern3.Mode = "offset"
linearpattern3.Offset = 84
linearpattern3.Occurrences = 3
linearpattern3.Reversed = True
body.Tip = linearpattern3
doc.recompute()

linearpattern4 = body.newObject("PartDesign::LinearPattern", "LinearPattern003")
linearpattern4.Originals = [pocket5]
linearpattern4.Direction = (doc.getObject("Z_Axis"), [""])
linearpattern4.Mode = "offset"
linearpattern4.Offset = 110
linearpattern4.Occurrences = 2
body.Tip = linearpattern4

doc.recompute()
